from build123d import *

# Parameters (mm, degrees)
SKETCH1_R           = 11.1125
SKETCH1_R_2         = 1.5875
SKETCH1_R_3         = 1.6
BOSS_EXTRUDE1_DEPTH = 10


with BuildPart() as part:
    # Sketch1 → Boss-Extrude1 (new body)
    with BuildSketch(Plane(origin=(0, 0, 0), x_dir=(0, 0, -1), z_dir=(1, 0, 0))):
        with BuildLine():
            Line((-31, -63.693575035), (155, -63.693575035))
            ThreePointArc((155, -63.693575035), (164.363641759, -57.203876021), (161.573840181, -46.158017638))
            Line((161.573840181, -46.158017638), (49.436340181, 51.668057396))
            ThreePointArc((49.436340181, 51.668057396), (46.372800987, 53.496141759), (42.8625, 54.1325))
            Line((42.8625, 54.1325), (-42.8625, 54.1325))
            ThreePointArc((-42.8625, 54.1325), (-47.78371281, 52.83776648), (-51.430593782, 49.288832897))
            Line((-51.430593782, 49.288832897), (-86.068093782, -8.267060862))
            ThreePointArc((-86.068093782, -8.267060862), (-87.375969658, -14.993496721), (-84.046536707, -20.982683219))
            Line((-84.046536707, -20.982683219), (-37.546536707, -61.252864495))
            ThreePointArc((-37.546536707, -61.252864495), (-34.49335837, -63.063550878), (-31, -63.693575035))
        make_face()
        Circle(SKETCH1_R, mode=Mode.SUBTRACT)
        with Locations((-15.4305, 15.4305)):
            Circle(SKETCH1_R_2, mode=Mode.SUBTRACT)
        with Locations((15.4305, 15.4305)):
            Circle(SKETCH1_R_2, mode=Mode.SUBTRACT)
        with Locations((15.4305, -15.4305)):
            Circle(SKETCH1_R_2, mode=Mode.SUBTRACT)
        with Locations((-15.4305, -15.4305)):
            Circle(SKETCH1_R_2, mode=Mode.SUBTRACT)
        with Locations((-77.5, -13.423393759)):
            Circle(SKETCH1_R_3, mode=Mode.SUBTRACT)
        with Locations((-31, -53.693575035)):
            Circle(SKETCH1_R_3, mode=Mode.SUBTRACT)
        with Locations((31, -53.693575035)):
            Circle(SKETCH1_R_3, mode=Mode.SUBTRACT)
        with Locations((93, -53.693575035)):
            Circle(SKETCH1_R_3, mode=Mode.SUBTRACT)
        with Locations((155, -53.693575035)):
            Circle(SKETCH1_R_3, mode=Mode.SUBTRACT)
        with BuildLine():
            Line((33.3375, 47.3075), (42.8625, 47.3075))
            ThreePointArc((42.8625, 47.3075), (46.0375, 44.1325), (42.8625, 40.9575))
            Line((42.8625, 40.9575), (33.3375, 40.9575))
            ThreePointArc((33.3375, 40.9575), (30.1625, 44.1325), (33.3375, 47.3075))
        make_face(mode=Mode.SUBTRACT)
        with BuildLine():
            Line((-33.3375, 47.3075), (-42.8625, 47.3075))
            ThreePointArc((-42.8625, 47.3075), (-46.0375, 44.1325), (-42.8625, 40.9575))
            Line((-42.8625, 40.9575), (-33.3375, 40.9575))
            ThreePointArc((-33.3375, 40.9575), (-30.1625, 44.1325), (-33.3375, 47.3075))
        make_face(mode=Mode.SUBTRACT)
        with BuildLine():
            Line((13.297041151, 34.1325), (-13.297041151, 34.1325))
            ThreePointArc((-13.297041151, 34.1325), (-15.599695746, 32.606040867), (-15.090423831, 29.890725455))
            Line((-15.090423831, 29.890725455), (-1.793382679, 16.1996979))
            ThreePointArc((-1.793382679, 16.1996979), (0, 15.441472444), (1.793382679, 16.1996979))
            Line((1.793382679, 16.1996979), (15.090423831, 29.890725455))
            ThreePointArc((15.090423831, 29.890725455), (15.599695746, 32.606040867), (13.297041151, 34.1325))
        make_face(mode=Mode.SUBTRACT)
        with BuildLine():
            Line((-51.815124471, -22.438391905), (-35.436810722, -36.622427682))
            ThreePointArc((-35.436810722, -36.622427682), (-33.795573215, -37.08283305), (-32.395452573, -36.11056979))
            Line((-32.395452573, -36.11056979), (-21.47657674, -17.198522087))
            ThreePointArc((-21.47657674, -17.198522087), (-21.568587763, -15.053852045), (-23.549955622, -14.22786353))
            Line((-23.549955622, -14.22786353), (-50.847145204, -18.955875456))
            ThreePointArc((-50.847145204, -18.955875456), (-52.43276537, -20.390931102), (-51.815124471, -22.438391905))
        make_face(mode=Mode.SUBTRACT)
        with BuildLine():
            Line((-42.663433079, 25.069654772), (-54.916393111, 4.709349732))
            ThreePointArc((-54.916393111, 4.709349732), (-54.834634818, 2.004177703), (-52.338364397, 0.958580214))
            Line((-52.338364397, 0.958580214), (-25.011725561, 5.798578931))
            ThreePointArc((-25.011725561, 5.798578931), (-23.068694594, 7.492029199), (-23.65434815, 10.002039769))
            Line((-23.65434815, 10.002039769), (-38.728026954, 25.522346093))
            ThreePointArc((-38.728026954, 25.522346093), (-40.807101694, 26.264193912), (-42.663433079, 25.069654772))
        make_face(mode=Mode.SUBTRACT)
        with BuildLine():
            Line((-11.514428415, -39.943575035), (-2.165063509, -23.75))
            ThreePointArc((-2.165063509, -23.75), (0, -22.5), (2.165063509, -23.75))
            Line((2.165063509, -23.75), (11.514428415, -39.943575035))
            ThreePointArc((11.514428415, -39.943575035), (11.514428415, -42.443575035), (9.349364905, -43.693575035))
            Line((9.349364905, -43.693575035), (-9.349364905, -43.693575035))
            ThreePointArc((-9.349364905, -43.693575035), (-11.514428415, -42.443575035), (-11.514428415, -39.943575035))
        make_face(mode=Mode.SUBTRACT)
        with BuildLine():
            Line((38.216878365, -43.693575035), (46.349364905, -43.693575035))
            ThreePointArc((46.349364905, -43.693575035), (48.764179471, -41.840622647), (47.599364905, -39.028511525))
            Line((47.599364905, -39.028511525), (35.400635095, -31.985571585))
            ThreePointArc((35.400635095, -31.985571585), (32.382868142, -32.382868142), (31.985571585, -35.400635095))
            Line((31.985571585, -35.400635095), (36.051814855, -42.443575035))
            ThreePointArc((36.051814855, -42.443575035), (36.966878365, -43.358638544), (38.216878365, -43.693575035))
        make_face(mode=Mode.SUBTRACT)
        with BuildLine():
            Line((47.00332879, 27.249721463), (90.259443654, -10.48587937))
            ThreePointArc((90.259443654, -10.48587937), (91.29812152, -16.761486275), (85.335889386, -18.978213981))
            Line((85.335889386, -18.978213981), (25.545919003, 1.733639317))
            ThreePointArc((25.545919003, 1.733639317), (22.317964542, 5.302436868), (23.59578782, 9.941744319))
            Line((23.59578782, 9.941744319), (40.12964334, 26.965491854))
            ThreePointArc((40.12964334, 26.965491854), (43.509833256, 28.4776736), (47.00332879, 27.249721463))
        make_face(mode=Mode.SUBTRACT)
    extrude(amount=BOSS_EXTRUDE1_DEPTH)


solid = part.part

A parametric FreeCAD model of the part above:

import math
import FreeCAD as App
import Part
import Sketcher

V = App.Vector
Q = App.Units.Quantity

doc = App.newDocument("Part")
body = doc.addObject("PartDesign::Body", "Body")

# Sketch on YZ plane
sketch1 = doc.addObject("Sketcher::SketchObject", "Sketch")
body.addObject(sketch1)
sketch1.AttachmentSupport = (doc.YZ_Plane, [""])
sketch1.MapMode = "FlatFace"
sketch1.addGeometry([
    Part.LineSegment(V(-63.693575, 31, 0), V(-63.693575, -155, 0)),  # 0
    Part.ArcOfCircle(Part.Circle(V(-53.693575, -155, 0), V(0, 0, 1), 10), math.radians(180), math.radians(318.899333)),  # 1
    Part.LineSegment(V(-46.158018, -161.57384, 0), V(51.668057, -49.43634, 0)),  # 2
    Part.ArcOfCircle(Part.Circle(V(44.1325, -42.8625, 0), V(0, 0, 1), 10), math.radians(-41.100667), math.radians(0)),  # 3
    Part.LineSegment(V(54.1325, -42.8625, 0), V(54.1325, 42.8625, 0)),  # 4
    Part.ArcOfCircle(Part.Circle(V(44.1325, 42.8625, 0), V(0, 0, 1), 10), math.radians(0), math.radians(58.960206)),  # 5
    Part.LineSegment(V(49.288833, 51.430594, 0), V(-8.267061, 86.068094, 0)),  # 6
    Part.ArcOfCircle(Part.Circle(V(-13.423394, 77.5, 0), V(0, 0, 1), 10), math.radians(58.960206), math.radians(139.106605)),  # 7
    Part.LineSegment(V(-20.982683, 84.046537, 0), V(-61.252864, 37.546537, 0)),  # 8
    Part.ArcOfCircle(Part.Circle(V(-53.693575, 31, 0), V(0, 0, 1), 10), math.radians(139.106605), math.radians(180)),  # 9
    Part.Circle(V(-53.693575, 31, 0), V(0, 0, 1), 1.6),  # 10
    Part.Circle(V(-53.693575, -31, 0), V(0, 0, 1), 1.6),  # 11
    Part.ArcOfCircle(Part.Circle(V(-41.193575, 9.349365, 0), V(0, 0, 1), 2.5), math.radians(60), math.radians(180)),  # 12
    Part.LineSegment(V(-39.943575, 11.514428, 0), V(-23.75, 2.165064, 0)),  # 13
    Part.ArcOfCircle(Part.Circle(V(-25, 0, 0), V(0, 0, 1), 2.5), math.radians(-60), math.radians(60)),  # 14
    Part.LineSegment(V(-23.75, -2.165064, 0), V(-39.943575, -11.514428, 0)),  # 15
    Part.ArcOfCircle(Part.Circle(V(-41.193575, -9.349365, 0), V(0, 0, 1), 2.5), math.radians(180), math.radians(300)),  # 16
    Part.LineSegment(V(-43.693575, -9.349365, 0), V(-43.693575, 9.349365, 0)),  # 17
    Part.LineSegment(V(-36.622428, 35.436811, 0), V(-22.438392, 51.815124, 0)),  # 18
    Part.ArcOfCircle(Part.Circle(V(-20.926534, 50.505817, 0), V(0, 0, 1), 2), math.radians(9.82643), math.radians(139.106605)),  # 19
    Part.LineSegment(V(-18.955875, 50.847145, 0), V(-14.227864, 23.549956, 0)),  # 20
    Part.ArcOfCircle(Part.Circle(V(-16.198522, 23.208628, 0), V(0, 0, 1), 2), math.radians(-120), math.radians(9.82643)),  # 21
    Part.LineSegment(V(-17.198522, 21.476577, 0), V(-36.11057, 32.395453, 0)),  # 22
    Part.ArcOfCircle(Part.Circle(V(-35.11057, 34.127503, 0), V(0, 0, 1), 2), math.radians(139.106605), math.radians(240)),  # 23
    Part.Circle(V(-13.423394, 77.5, 0), V(0, 0, 1), 1.6),  # 24
    Part.Circle(V(-15.4305, 15.4305, 0), V(0, 0, 1), 1.5875),  # 25
    Part.Circle(V(-15.4305, -15.4305, 0), V(0, 0, 1), 1.5875),  # 26
    Part.Circle(V(-53.693575, -93, 0), V(0, 0, 1), 1.6),  # 27
    Part.LineSegment(V(-43.693575, -46.349365, 0), V(-43.693575, -38.216878, 0)),  # 28
    Part.ArcOfCircle(Part.Circle(V(-41.193575, -38.216878, 0), V(0, 0, 1), 2.5), math.radians(120), math.radians(180)),  # 29
    Part.LineSegment(V(-42.443575, -36.051815, 0), V(-35.400635, -31.985572, 0)),  # 30
    Part.ArcOfCircle(Part.Circle(V(-34.150635, -34.150635, 0), V(0, 0, 1), 2.5), math.radians(-30), math.radians(120)),  # 31
    Part.LineSegment(V(-31.985572, -35.400635, 0), V(-39.028512, -47.599365, 0)),  # 32
    Part.ArcOfCircle(Part.Circle(V(-41.193575, -46.349365, 0), V(0, 0, 1), 2.5), math.radians(180), math.radians(330)),  # 33
    Part.Circle(V(-53.693575, -155, 0), V(0, 0, 1), 1.6),  # 34
    Part.LineSegment(V(4.70935, 54.916393, 0), V(25.069655, 42.663433, 0)),  # 35
    Part.ArcOfCircle(Part.Circle(V(23.780572, 40.52141, 0), V(0, 0, 1), 2.5), math.radians(-45.836375), math.radians(58.960206)),  # 36
    Part.LineSegment(V(25.522346, 38.728027, 0), V(10.00204, 23.654348, 0)),  # 37
    Part.ArcOfCircle(Part.Circle(V(8.260265, 25.447731, 0), V(0, 0, 1), 2.5), math.radians(-169.956134), math.radians(-45.836375)),  # 38
    Part.LineSegment(V(5.798579, 25.011726, 0), V(0.95858, 52.338364, 0)),  # 39
    Part.ArcOfCircle(Part.Circle(V(3.420267, 52.77437, 0), V(0, 0, 1), 2.5), math.radians(58.960206), math.radians(190.043866)),  # 40
    Part.Circle(V(0, 0, 0), V(0, 0, 1), 11.1125),  # 41
    Part.Circle(V(15.4305, 15.4305, 0), V(0, 0, 1), 1.5875),  # 42
    Part.Circle(V(15.4305, -15.4305, 0), V(0, 0, 1), 1.5875),  # 43
    Part.LineSegment(V(47.3075, 42.8625, 0), V(47.3075, 33.3375, 0)),  # 44
    Part.ArcOfCircle(Part.Circle(V(44.1325, 33.3375, 0), V(0, 0, 1), 3.175), math.radians(180), math.radians(360)),  # 45
    Part.LineSegment(V(40.9575, 33.3375, 0), V(40.9575, 42.8625, 0)),  # 46
    Part.ArcOfCircle(Part.Circle(V(44.1325, 42.8625, 0), V(0, 0, 1), 3.175), math.radians(0), math.radians(180)),  # 47
    Part.LineSegment(V(34.1325, 13.297041, 0), V(34.1325, -13.297041, 0)),  # 48
    Part.ArcOfCircle(Part.Circle(V(31.6325, -13.297041, 0), V(0, 0, 1), 2.5), math.radians(-134.163625), math.radians(0)),  # 49
    Part.LineSegment(V(29.890725, -15.090424, 0), V(16.199698, -1.793383, 0)),  # 50
    Part.ArcOfCircle(Part.Circle(V(17.941472, 0, 0), V(0, 0, 1), 2.5), math.radians(134.163625), math.radians(225.836375)),  # 51
    Part.LineSegment(V(16.199698, 1.793383, 0), V(29.890725, 15.090424, 0)),  # 52
    Part.ArcOfCircle(Part.Circle(V(31.6325, 13.297041, 0), V(0, 0, 1), 2.5), math.radians(0), math.radians(134.163625)),  # 53
    Part.ArcOfCircle(Part.Circle(V(44.1325, -33.3375, 0), V(0, 0, 1), 3.175), math.radians(0), math.radians(180)),  # 54
    Part.LineSegment(V(47.3075, -33.3375, 0), V(47.3075, -42.8625, 0)),  # 55
    Part.ArcOfCircle(Part.Circle(V(44.1325, -42.8625, 0), V(0, 0, 1), 3.175), math.radians(180), math.radians(360)),  # 56
    Part.LineSegment(V(40.9575, -42.8625, 0), V(40.9575, -33.3375, 0)),  # 57
    Part.ArcOfCircle(Part.Circle(V(23.481943, -43.716409, 0), V(0, 0, 1), 5), math.radians(-41.100667), math.radians(45.836375)),  # 58
    Part.LineSegment(V(27.249721, -47.003329, 0), V(-10.485879, -90.259444, 0)),  # 59
    Part.ArcOfCircle(Part.Circle(V(-14.253658, -86.972524, 0), V(0, 0, 1), 5), math.radians(160.893395), math.radians(318.899333)),  # 60
    Part.LineSegment(V(-18.978214, -85.335889, 0), V(1.733639, -25.545919, 0)),  # 61
    Part.ArcOfCircle(Part.Circle(V(6.458195, -27.182553, 0), V(0, 0, 1), 5), math.radians(45.836375), math.radians(160.893395)),  # 62
    Part.LineSegment(V(9.941744, -23.595788, 0), V(26.965492, -40.129643, 0)),  # 63
], False)
sketch1.addConstraint([
    Sketcher.Constraint("Coincident", 0, 2, 1, 1),
    Sketcher.Constraint("Coincident", 1, 2, 2, 1),
    Sketcher.Constraint("Coincident", 2, 2, 3, 1),
    Sketcher.Constraint("Coincident", 3, 2, 4, 1),
    Sketcher.Constraint("Coincident", 4, 2, 5, 1),
    Sketcher.Constraint("Coincident", 5, 2, 6, 1),
    Sketcher.Constraint("Coincident", 6, 2, 7, 1),
    Sketcher.Constraint("Coincident", 7, 2, 8, 1),
    Sketcher.Constraint("Coincident", 8, 2, 9, 1),
    Sketcher.Constraint("Coincident", 9, 2, 0, 1),
    Sketcher.Constraint("Coincident", 12, 1, 13, 1),
    Sketcher.Constraint("Coincident", 13, 2, 14, 2),
    Sketcher.Constraint("Coincident", 14, 1, 15, 1),
    Sketcher.Constraint("Coincident", 15, 2, 16, 2),
    Sketcher.Constraint("Coincident", 16, 1, 17, 1),
    Sketcher.Constraint("Coincident", 17, 2, 12, 2),
    Sketcher.Constraint("Coincident", 18, 2, 19, 2),
    Sketcher.Constraint("Coincident", 19, 1, 20, 1),
    Sketcher.Constraint("Coincident", 20, 2, 21, 2),
    Sketcher.Constraint("Coincident", 21, 1, 22, 1),
    Sketcher.Constraint("Coincident", 22, 2, 23, 2),
    Sketcher.Constraint("Coincident", 23, 1, 18, 1),
    Sketcher.Constraint("Coincident", 28, 2, 29, 2),
    Sketcher.Constraint("Coincident", 29, 1, 30, 1),
    Sketcher.Constraint("Coincident", 30, 2, 31, 2),
    Sketcher.Constraint("Coincident", 31, 1, 32, 1),
    Sketcher.Constraint("Coincident", 32, 2, 33, 2),
    Sketcher.Constraint("Coincident", 33, 1, 28, 1),
    Sketcher.Constraint("Coincident", 35, 2, 36, 2),
    Sketcher.Constraint("Coincident", 36, 1, 37, 1),
    Sketcher.Constraint("Coincident", 37, 2, 38, 2),
    Sketcher.Constraint("Coincident", 38, 1, 39, 1),
    Sketcher.Constraint("Coincident", 39, 2, 40, 2),
    Sketcher.Constraint("Coincident", 40, 1, 35, 1),
    Sketcher.Constraint("Coincident", 44, 2, 45, 2),
    Sketcher.Constraint("Coincident", 45, 1, 46, 1),
    Sketcher.Constraint("Coincident", 46, 2, 47, 2),
    Sketcher.Constraint("Coincident", 47, 1, 44, 1),
    Sketcher.Constraint("Coincident", 48, 2, 49, 2),
    Sketcher.Constraint("Coincident", 49, 1, 50, 1),
    Sketcher.Constraint("Coincident", 50, 2, 51, 2),
    Sketcher.Constraint("Coincident", 51, 1, 52, 1),
    Sketcher.Constraint("Coincident", 52, 2, 53, 2),
    Sketcher.Constraint("Coincident", 53, 1, 48, 1),
    Sketcher.Constraint("Coincident", 54, 1, 55, 1),
    Sketcher.Constraint("Coincident", 55, 2, 56, 2),
    Sketcher.Constraint("Coincident", 56, 1, 57, 1),
    Sketcher.Constraint("Coincident", 57, 2, 54, 2),
    Sketcher.Constraint("Coincident", 58, 1, 59, 1),
    Sketcher.Constraint("Coincident", 59, 2, 60, 2),
    Sketcher.Constraint("Coincident", 60, 1, 61, 1),
    Sketcher.Constraint("Coincident", 61, 2, 62, 2),
    Sketcher.Constraint("Coincident", 62, 1, 63, 1),
    Sketcher.Constraint("Coincident", 63, 2, 58, 2),
    Sketcher.Constraint("Vertical", 0),
    Sketcher.Constraint("Vertical", 4),
    Sketcher.Constraint("Vertical", 17),
    Sketcher.Constraint("Vertical", 28),
    Sketcher.Constraint("Vertical", 44),
    Sketcher.Constraint("Vertical", 46),
    Sketcher.Constraint("Vertical", 48),
    Sketcher.Constraint("Vertical", 55),
    Sketcher.Constraint("Vertical", 57),
    Sketcher.Constraint("Coincident", 41, 3, -1, 1),
    Sketcher.Constraint("Coincident", 10, 3, 9, 3),
    Sketcher.Constraint("Coincident", 24, 3, 7, 3),
    Sketcher.Constraint("Coincident", 34, 3, 1, 3),
    Sketcher.Constraint("Coincident", 47, 3, 5, 3),
    Sketcher.Constraint("Coincident", 56, 3, 3, 3),
    Sketcher.Constraint("PointOnObject", 14, 3, -1),
    Sketcher.Constraint("PointOnObject", 51, 3, -1),
    Sketcher.Constraint("Radius", 1, Q("10 mm")),
    Sketcher.Constraint("Radius", 3, Q("10 mm")),
    Sketcher.Constraint("Radius", 5, Q("10 mm")),
    Sketcher.Constraint("Radius", 7, Q("10 mm")),
    Sketcher.Constraint("Radius", 9, Q("10 mm")),
    Sketcher.Constraint("Radius", 19, Q("2 mm")),
    Sketcher.Constraint("Radius", 21, Q("2 mm")),
    Sketcher.Constraint("Radius", 23, Q("2 mm")),
    Sketcher.Constraint("Radius", 58, Q("5 mm")),
    Sketcher.Constraint("Radius", 60, Q("5 mm")),
    Sketcher.Constraint("Radius", 62, Q("5 mm")),
    Sketcher.Constraint("Diameter", 10, Q("3.2 mm")),
    Sketcher.Constraint("Diameter", 11, Q("3.2 mm")),
    Sketcher.Constraint("Diameter", 24, Q("3.2 mm")),
    Sketcher.Constraint("Diameter", 27, Q("3.2 mm")),
    Sketcher.Constraint("Diameter", 34, Q("3.2 mm")),
    Sketcher.Constraint("Radius", 12, Q("2.5 mm")),
    Sketcher.Constraint("Radius", 14, Q("2.5 mm")),
    Sketcher.Constraint("Radius", 16, Q("2.5 mm")),
    Sketcher.Constraint("Radius", 29, Q("2.5 mm")),
    Sketcher.Constraint("Radius", 31, Q("2.5 mm")),
    Sketcher.Constraint("Radius", 33, Q("2.5 mm")),
    Sketcher.Constraint("Radius", 36, Q("2.5 mm")),
    Sketcher.Constraint("Radius", 38, Q("2.5 mm")),
    Sketcher.Constraint("Radius", 40, Q("2.5 mm")),
    Sketcher.Constraint("Radius", 49, Q("2.5 mm")),
    Sketcher.Constraint("Radius", 51, Q("2.5 mm")),
    Sketcher.Constraint("Radius", 53, Q("2.5 mm")),
    Sketcher.Constraint("DistanceY", 0, 2, 0, 1, Q("186 mm")),
    Sketcher.Constraint("Diameter", 25, Q("3.175 mm")),
    Sketcher.Constraint("Diameter", 26, Q("3.175 mm")),
    Sketcher.Constraint("Diameter", 41, Q("22.225 mm")),
    Sketcher.Constraint("Diameter", 42, Q("3.175 mm")),
    Sketcher.Constraint("Diameter", 43, Q("3.175 mm")),
    Sketcher.Constraint("DistanceY", 1, 3, -1, 1, Q("155 mm")),
    Sketcher.Constraint("DistanceY", -1, 1, 9, 3, Q("31 mm")),
    Sketcher.Constraint("DistanceY", 11, 3, -1, 1, Q("31 mm")),
    Sketcher.Constraint("DistanceX", 14, 3, -1, 1, Q("25 mm")),
    Sketcher.Constraint("DistanceY", 27, 3, -1, 1, Q("93 mm")),
    Sketcher.Constraint("DistanceY", 0, 2, -1, 1, Q("155 mm")),
    Sketcher.Constraint("Radius", 45, Q("3.175 mm")),
    Sketcher.Constraint("Radius", 54, Q("3.175 mm")),
    Sketcher.Constraint("DistanceY", -1, 1, 7, 3, Q("77.5 mm")),
    Sketcher.Constraint("DistanceY", 4, 1, 4, 2, Q("85.725 mm")),
    Sketcher.Constraint("DistanceY", 44, 2, 44, 1, Q("9.525 mm")),
    Sketcher.Constraint("DistanceY", 46, 1, 46, 2, Q("9.525 mm")),
    Sketcher.Constraint("DistanceY", 55, 2, 55, 1, Q("9.525 mm")),
    Sketcher.Constraint("DistanceY", 57, 1, 57, 2, Q("9.525 mm")),
    Sketcher.Constraint("DistanceX", 13, 2, -1, 1, Q("23.75 mm")),
    Sketcher.Constraint("DistanceX", 14, 1, -1, 1, Q("23.75 mm")),
    Sketcher.Constraint("DistanceY", 17, 1, 17, 2, Q("18.69873 mm")),
    Sketcher.Constraint("DistanceX", -1, 1, 3, 3, Q("44.1325 mm")),
    Sketcher.Constraint("DistanceY", 3, 3, -1, 1, Q("42.8625 mm")),
    Sketcher.Constraint("DistanceY", -1, 1, 5, 3, Q("42.8625 mm")),
    Sketcher.Constraint("DistanceX", 25, 3, -1, 1, Q("15.4305 mm")),
    Sketcher.Constraint("DistanceY", -1, 1, 25, 3, Q("15.4305 mm")),
    Sketcher.Constraint("DistanceX", 26, 3, -1, 1, Q("15.4305 mm")),
    Sketcher.Constraint("DistanceY", 26, 3, -1, 1, Q("15.4305 mm")),
    Sketcher.Constraint("DistanceX", -1, 1, 42, 3, Q("15.4305 mm")),
    Sketcher.Constraint("DistanceY", -1, 1, 42, 3, Q("15.4305 mm")),
    Sketcher.Constraint("DistanceX", -1, 1, 43, 3, Q("15.4305 mm")),
    Sketcher.Constraint("DistanceY", 43, 3, -1, 1, Q("15.4305 mm")),
    Sketcher.Constraint("DistanceY", -1, 1, 45, 3, Q("33.3375 mm")),
    Sketcher.Constraint("DistanceX", -1, 1, 49, 3, Q("31.6325 mm")),
    Sketcher.Constraint("DistanceY", 54, 3, -1, 1, Q("33.3375 mm")),
    Sketcher.Constraint("DistanceY", 3, 2, -1, 1, Q("42.8625 mm")),
    Sketcher.Constraint("DistanceY", -1, 1, 44, 2, Q("33.3375 mm")),
    Sketcher.Constraint("DistanceY", -1, 1, 45, 1, Q("33.3375 mm")),
    Sketcher.Constraint("DistanceY", 54, 1, -1, 1, Q("33.3375 mm")),
    Sketcher.Constraint("DistanceY", 56, 1, -1, 1, Q("42.8625 mm")),
    Sketcher.Constraint("Distance", 13, Q("18.69873 mm")),
    Sketcher.Constraint("Distance", 15, Q("18.69873 mm")),
    Sketcher.Constraint("Distance", 20, Q("27.703622 mm")),
    Sketcher.Constraint("Distance", 22, Q("21.837752 mm")),
    Sketcher.Constraint("Distance", 32, Q("14.08588 mm")),
    Sketcher.Constraint("Distance", 37, Q("21.635519 mm")),
    Sketcher.Constraint("Distance", 39, Q("27.751951 mm")),
    Sketcher.Constraint("Distance", 50, Q("19.08548 mm")),
    Sketcher.Constraint("Distance", 52, Q("19.08548 mm")),
    Sketcher.Constraint("DistanceY", 28, 1, 28, 2, Q("8.132487 mm")),
    Sketcher.Constraint("DistanceY", 48, 2, 48, 1, Q("26.594082 mm")),
    Sketcher.Constraint("DistanceX", 23, 3, -1, 1, Q("35.11057 mm")),
    Sketcher.Constraint("DistanceY", 29, 3, -1, 1, Q("38.216878 mm")),
    Sketcher.Constraint("DistanceX", -1, 1, 36, 3, Q("23.780572 mm")),
    Sketcher.Constraint("DistanceY", -1, 1, 36, 3, Q("40.52141 mm")),
    Sketcher.Constraint("DistanceY", -1, 1, 38, 3, Q("25.447731 mm")),
    Sketcher.Constraint("DistanceY", -1, 1, 40, 3, Q("52.77437 mm")),
    Sketcher.Constraint("DistanceY", 49, 3, -1, 1, Q("13.297041 mm")),
    Sketcher.Constraint("DistanceY", -1, 1, 53, 3, Q("13.297041 mm")),
    Sketcher.Constraint("DistanceY", 58, 3, -1, 1, Q("43.716409 mm")),
    Sketcher.Constraint("DistanceX", 60, 3, -1, 1, Q("14.253658 mm")),
    Sketcher.Constraint("DistanceY", 1, 2, -1, 1, Q("161.57384 mm")),
    Sketcher.Constraint("DistanceY", 2, 2, -1, 1, Q("49.43634 mm")),
    Sketcher.Constraint("DistanceX", 6, 2, -1, 1, Q("8.267061 mm")),
    Sketcher.Constraint("DistanceY", -1, 1, 12, 1, Q("11.514428 mm")),
    Sketcher.Constraint("DistanceY", 15, 2, -1, 1, Q("11.514428 mm")),
    Sketcher.Constraint("DistanceX", 18, 2, -1, 1, Q("22.438392 mm")),
    Sketcher.Constraint("DistanceX", 22, 2, -1, 1, Q("36.11057 mm")),
    Sketcher.Constraint("DistanceY", -1, 1, 23, 1, Q("35.436811 mm")),
    Sketcher.Constraint("DistanceY", 28, 2, -1, 1, Q("38.216878 mm")),
    Sketcher.Constraint("DistanceY", 30, 2, -1, 1, Q("31.985572 mm")),
    Sketcher.Constraint("DistanceX", 31, 1, -1, 1, Q("31.985572 mm")),
    Sketcher.Constraint("DistanceX", 32, 2, -1, 1, Q("39.028512 mm")),
    Sketcher.Constraint("DistanceX", -1, 1, 37, 2, Q("10.00204 mm")),
    Sketcher.Constraint("DistanceY", -1, 1, 37, 2, Q("23.654348 mm")),
    Sketcher.Constraint("DistanceX", -1, 1, 38, 1, Q("5.798579 mm")),
    Sketcher.Constraint("DistanceX", -1, 1, 39, 2, Q("0.95858 mm")),
    Sketcher.Constraint("DistanceX", -1, 1, 40, 1, Q("4.70935 mm")),
    Sketcher.Constraint("DistanceY", 48, 2, -1, 1, Q("13.297041 mm")),
    Sketcher.Constraint("DistanceX", -1, 1, 58, 1, Q("27.249721 mm")),
    Sketcher.Constraint("DistanceY", 58, 1, -1, 1, Q("47.003329 mm")),
    Sketcher.Constraint("DistanceX", 59, 2, -1, 1, Q("10.485879 mm")),
    Sketcher.Constraint("DistanceY", 60, 1, -1, 1, Q("85.335889 mm")),
    Sketcher.Constraint("DistanceX", -1, 1, 61, 2, Q("1.733639 mm")),
    Sketcher.Constraint("DistanceY", 61, 2, -1, 1, Q("25.545919 mm")),
    Sketcher.Constraint("DistanceX", -1, 1, 63, 2, Q("26.965492 mm")),
    Sketcher.Constraint("Distance", 2, Q("148.811155 mm")),
    Sketcher.Constraint("Distance", 6, Q("67.174678 mm")),
    Sketcher.Constraint("Distance", 8, Q("61.513718 mm")),
    Sketcher.Constraint("Distance", 18, Q("21.666473 mm")),
    Sketcher.Constraint("Distance", 30, Q("8.132487 mm")),
    Sketcher.Constraint("Distance", 35, Q("23.762934 mm")),
    Sketcher.Constraint("Distance", 59, Q("57.402675 mm")),
    Sketcher.Constraint("Distance", 63, Q("23.731337 mm")),
    Sketcher.Constraint("DistanceX", 7, 3, -1, 1, Q("13.423394 mm")),
    Sketcher.Constraint("DistanceX", 11, 3, -1, 1, Q("53.693575 mm")),
    Sketcher.Constraint("DistanceX", 12, 3, -1, 1, Q("41.193575 mm")),
    Sketcher.Constraint("DistanceX", 19, 3, -1, 1, Q("20.926534 mm")),
    Sketcher.Constraint("DistanceY", -1, 1, 19, 3, Q("50.505817 mm")),
    Sketcher.Constraint("DistanceX", 21, 3, -1, 1, Q("16.198522 mm")),
    Sketcher.Constraint("DistanceY", -1, 1, 21, 3, Q("23.208628 mm")),
    Sketcher.Constraint("DistanceX", 27, 3, -1, 1, Q("53.693575 mm")),
    Sketcher.Constraint("DistanceX", 29, 3, -1, 1, Q("41.193575 mm")),
    Sketcher.Constraint("DistanceX", 31, 3, -1, 1, Q("34.150635 mm")),
    Sketcher.Constraint("DistanceY", 31, 3, -1, 1, Q("34.150635 mm")),
    Sketcher.Constraint("DistanceX", -1, 1, 51, 3, Q("17.941472 mm")),
    Sketcher.Constraint("DistanceX", -1, 1, 62, 3, Q("6.458195 mm")),
    Sketcher.Constraint("DistanceX", 7, 2, -1, 1, Q("20.982683 mm")),
    Sketcher.Constraint("DistanceY", 16, 1, -1, 1, Q("9.349365 mm")),
    Sketcher.Constraint("DistanceX", 19, 1, -1, 1, Q("18.955875 mm")),
    Sketcher.Constraint("DistanceX", -1, 1, 49, 1, Q("29.890725 mm")),
    Sketcher.Constraint("DistanceX", -1, 1, 51, 1, Q("16.199698 mm")),
])
pad1 = doc.addObject("PartDesign::Pad", "Pad")
body.addObject(pad1)
pad1.Profile = sketch1
pad1.Length = 10

doc.recompute()
